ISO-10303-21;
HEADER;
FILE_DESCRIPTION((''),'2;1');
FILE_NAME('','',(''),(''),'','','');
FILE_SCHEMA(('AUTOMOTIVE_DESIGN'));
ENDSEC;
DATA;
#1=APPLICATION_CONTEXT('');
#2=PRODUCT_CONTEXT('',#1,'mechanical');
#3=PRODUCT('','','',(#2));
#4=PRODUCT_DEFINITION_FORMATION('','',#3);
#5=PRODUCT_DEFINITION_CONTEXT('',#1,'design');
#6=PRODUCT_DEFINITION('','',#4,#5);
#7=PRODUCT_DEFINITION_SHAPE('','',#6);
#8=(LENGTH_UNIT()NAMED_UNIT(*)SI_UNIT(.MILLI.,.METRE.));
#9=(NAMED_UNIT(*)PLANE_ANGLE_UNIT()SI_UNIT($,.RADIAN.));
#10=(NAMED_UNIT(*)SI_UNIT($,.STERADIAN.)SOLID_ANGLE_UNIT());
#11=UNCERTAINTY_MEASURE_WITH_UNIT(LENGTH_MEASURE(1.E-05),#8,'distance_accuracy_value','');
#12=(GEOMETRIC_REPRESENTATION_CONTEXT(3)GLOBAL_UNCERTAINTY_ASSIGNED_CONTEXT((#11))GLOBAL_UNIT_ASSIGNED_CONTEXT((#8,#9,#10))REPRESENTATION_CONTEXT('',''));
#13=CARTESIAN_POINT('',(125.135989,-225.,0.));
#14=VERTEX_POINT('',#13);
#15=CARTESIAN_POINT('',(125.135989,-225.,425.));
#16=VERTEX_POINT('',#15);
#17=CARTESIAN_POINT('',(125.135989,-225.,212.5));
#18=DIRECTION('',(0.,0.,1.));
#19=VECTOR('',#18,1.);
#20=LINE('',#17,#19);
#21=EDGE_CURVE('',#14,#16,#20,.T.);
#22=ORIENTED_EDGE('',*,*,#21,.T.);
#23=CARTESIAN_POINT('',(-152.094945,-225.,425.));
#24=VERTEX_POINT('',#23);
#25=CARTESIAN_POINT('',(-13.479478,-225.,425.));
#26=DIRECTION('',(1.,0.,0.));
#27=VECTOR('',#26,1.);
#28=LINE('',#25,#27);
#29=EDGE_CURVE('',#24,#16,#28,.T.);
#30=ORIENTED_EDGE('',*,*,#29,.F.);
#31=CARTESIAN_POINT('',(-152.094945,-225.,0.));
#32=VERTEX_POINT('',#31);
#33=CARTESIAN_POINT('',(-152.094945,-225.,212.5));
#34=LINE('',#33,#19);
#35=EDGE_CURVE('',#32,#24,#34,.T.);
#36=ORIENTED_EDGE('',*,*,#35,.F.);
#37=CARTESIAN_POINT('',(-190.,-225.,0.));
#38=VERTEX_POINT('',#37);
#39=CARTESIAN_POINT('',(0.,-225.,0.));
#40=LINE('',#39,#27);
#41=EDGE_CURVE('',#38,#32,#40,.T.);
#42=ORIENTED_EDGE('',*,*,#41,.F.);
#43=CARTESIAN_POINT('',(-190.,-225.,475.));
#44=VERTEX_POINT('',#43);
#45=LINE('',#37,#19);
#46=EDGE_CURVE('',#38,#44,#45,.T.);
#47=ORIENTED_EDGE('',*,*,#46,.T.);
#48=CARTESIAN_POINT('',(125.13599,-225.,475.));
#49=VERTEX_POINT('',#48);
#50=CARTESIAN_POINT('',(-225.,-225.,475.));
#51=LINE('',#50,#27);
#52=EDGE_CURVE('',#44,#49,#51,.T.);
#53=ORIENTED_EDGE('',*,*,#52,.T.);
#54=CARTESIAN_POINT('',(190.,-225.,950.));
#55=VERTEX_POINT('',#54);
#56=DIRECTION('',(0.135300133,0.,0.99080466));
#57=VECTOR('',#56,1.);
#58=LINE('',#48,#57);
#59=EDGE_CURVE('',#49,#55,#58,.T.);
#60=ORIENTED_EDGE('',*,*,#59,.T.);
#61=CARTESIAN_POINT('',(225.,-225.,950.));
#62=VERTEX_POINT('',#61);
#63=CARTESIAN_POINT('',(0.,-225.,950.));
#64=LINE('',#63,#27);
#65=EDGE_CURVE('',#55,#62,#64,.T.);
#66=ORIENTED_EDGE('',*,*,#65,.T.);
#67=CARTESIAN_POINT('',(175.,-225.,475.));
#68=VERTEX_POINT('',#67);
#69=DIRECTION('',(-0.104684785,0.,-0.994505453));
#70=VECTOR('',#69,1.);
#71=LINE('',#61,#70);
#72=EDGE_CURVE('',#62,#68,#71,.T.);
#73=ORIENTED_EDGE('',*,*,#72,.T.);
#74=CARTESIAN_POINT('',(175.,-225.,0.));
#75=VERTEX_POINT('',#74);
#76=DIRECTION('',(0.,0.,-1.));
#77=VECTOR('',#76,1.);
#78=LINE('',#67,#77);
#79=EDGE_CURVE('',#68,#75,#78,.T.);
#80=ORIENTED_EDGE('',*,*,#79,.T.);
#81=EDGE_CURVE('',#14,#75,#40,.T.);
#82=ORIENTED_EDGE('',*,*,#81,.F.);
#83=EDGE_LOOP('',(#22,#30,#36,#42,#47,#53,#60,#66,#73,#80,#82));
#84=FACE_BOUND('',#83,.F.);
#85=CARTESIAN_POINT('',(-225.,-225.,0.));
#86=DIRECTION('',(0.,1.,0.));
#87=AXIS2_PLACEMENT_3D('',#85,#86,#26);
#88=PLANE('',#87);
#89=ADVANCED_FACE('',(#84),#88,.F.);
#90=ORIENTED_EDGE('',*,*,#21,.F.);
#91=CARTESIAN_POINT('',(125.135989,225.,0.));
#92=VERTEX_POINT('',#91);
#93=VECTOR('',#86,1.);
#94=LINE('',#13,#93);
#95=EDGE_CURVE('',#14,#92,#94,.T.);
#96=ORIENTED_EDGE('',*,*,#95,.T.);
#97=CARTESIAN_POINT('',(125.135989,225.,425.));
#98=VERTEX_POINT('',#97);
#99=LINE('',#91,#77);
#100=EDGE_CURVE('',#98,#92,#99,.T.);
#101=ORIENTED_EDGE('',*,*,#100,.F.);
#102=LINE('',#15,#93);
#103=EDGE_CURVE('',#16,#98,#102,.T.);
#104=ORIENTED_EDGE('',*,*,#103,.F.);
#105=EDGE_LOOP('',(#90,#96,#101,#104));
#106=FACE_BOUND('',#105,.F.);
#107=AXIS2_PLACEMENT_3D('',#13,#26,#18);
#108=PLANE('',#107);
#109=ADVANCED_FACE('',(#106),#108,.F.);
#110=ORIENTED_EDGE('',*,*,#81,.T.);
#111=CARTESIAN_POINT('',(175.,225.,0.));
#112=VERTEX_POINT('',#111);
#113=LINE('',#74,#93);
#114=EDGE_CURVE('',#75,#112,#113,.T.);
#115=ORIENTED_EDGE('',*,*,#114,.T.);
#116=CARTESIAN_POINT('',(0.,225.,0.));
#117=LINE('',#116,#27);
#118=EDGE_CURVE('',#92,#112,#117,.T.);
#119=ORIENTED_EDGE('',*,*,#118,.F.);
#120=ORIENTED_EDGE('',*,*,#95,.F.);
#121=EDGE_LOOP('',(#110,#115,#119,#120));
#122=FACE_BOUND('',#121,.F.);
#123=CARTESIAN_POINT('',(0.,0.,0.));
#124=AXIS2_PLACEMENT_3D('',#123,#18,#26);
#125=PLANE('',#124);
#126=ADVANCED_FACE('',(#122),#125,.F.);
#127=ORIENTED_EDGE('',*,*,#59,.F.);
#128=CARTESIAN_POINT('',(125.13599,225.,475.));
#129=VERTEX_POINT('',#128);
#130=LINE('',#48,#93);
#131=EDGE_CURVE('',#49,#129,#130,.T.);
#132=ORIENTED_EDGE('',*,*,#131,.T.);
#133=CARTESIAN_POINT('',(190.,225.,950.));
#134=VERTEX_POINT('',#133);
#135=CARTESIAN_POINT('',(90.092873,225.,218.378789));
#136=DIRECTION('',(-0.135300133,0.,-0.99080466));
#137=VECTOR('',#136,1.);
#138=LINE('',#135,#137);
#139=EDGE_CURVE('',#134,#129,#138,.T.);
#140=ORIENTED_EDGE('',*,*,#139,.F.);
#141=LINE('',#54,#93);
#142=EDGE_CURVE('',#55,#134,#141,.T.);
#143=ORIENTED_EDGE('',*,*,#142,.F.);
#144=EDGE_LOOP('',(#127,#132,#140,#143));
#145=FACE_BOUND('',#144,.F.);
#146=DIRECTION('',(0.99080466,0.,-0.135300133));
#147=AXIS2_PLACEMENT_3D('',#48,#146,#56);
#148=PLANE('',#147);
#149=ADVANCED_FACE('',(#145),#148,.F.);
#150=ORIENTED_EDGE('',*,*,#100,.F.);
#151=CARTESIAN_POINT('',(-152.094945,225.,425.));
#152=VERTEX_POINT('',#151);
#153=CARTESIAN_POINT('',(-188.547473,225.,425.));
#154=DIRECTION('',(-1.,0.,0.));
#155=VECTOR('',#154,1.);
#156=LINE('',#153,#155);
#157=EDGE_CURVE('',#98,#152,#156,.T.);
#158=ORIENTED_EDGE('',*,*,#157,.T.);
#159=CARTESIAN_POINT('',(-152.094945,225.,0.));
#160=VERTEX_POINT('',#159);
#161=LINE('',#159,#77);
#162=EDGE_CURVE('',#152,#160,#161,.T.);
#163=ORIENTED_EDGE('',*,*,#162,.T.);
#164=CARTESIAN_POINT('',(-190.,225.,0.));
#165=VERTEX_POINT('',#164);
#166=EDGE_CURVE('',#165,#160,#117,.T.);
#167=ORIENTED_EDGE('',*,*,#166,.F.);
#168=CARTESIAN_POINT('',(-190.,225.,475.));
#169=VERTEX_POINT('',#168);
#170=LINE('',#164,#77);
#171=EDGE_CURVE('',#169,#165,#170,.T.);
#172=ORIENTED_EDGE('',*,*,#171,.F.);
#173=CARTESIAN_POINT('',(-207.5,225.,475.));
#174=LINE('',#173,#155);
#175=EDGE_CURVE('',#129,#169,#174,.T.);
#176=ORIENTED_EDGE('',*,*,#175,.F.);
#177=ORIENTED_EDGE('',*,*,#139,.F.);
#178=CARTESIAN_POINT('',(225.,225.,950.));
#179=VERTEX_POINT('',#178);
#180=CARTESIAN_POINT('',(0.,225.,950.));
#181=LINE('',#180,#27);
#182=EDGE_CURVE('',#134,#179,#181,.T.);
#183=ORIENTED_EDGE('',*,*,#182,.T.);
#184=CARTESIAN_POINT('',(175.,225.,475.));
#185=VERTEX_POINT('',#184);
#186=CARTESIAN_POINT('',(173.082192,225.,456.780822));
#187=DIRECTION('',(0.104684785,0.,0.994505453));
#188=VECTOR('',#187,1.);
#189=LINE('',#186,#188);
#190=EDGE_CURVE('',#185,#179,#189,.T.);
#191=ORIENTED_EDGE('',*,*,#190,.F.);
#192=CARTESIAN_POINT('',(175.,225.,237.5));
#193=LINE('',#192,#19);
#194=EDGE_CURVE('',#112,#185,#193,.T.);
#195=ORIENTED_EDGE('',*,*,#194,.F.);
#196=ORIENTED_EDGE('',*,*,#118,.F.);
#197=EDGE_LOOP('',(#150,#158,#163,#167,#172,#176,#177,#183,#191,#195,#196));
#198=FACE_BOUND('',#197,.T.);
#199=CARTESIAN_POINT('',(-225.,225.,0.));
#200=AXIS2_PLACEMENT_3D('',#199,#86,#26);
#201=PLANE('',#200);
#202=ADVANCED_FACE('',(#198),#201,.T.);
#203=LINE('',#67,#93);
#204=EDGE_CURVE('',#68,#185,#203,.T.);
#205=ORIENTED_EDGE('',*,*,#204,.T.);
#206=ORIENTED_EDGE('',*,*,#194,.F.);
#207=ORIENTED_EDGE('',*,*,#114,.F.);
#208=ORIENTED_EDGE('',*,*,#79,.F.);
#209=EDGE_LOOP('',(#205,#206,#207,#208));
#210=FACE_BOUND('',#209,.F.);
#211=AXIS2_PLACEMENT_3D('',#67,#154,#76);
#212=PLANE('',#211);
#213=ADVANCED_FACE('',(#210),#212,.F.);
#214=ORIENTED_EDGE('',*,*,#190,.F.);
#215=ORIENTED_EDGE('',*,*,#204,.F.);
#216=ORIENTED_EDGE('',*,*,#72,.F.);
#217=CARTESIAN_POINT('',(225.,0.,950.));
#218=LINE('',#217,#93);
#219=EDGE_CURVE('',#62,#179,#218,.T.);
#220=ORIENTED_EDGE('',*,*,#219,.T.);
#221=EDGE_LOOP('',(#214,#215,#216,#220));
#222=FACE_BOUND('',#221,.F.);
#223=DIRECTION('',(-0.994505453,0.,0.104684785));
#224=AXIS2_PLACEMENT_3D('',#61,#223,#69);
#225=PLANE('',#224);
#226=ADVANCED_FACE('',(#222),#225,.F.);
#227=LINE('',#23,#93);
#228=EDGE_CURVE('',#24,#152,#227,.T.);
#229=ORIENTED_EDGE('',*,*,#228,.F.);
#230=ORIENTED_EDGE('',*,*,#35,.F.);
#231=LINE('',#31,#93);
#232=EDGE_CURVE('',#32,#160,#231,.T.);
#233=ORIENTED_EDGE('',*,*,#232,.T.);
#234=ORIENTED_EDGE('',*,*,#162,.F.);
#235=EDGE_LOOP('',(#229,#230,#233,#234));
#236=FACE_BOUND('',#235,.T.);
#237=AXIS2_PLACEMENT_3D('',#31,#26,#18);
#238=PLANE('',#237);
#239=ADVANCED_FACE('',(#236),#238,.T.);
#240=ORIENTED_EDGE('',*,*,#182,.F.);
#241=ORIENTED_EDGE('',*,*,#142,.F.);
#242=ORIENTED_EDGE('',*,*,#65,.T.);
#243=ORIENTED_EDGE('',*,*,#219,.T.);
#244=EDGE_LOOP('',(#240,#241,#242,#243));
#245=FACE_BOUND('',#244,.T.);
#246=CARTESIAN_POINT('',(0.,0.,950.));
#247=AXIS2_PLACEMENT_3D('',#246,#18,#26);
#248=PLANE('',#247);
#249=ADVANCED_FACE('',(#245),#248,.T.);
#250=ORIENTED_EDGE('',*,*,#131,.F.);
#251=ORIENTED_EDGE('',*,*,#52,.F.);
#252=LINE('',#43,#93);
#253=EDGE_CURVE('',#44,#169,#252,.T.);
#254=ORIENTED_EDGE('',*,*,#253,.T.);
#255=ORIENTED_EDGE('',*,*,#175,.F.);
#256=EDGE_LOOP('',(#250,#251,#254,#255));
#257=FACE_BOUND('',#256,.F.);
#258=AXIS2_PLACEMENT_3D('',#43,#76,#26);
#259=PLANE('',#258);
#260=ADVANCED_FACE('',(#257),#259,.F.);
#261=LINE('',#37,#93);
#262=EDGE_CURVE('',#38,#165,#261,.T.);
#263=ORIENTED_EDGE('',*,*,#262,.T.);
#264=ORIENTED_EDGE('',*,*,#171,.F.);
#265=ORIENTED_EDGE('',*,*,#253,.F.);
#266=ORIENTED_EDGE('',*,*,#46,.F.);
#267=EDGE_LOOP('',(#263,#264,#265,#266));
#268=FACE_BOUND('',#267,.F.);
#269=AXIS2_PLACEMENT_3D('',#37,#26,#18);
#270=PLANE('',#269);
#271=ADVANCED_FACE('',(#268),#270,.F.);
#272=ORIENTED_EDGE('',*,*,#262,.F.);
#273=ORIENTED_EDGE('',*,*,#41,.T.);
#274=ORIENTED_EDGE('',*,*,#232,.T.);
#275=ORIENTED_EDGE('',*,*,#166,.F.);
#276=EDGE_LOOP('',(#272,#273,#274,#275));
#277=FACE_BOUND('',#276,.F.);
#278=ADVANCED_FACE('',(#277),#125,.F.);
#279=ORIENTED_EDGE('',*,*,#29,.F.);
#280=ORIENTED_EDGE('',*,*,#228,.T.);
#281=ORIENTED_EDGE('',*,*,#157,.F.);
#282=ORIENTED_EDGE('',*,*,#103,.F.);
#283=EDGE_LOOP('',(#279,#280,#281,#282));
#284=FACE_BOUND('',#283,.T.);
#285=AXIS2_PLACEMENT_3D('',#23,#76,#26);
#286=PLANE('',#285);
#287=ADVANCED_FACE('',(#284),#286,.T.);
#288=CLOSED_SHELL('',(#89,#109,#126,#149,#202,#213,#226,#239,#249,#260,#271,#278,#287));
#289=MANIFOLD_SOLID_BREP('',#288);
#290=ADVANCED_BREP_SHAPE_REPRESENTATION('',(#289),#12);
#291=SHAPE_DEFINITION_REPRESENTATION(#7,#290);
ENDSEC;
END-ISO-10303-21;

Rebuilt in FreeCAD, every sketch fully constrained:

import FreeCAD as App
import Part
import Sketcher

V = App.Vector
Q = App.Units.Quantity

doc = App.newDocument("Part")
body = doc.addObject("PartDesign::Body", "Body")

sketch1 = doc.addObject("Sketcher::SketchObject", "Sketch")
body.addObject(sketch1)
sketch1.AttachmentSupport = (doc.XY_Plane, [""])
sketch1.MapMode = "FlatFace"
sketch1.addGeometry([
    Part.LineSegment(V(-225, 225, 0), V(-225, -225, 0)),
    Part.LineSegment(V(-225, -225, 0), V(225, -225, 0)),
    Part.LineSegment(V(225, -225, 0), V(225, 225, 0)),
    Part.LineSegment(V(225, 225, 0), V(-225, 225, 0)),
], False)
sketch1.addConstraint([
    Sketcher.Constraint("Coincident", 0, 2, 1, 1),
    Sketcher.Constraint("Coincident", 1, 2, 2, 1),
    Sketcher.Constraint("Coincident", 2, 2, 3, 1),
    Sketcher.Constraint("Coincident", 3, 2, 0, 1),
    Sketcher.Constraint("Vertical", 0),
    Sketcher.Constraint("Horizontal", 1),
    Sketcher.Constraint("Vertical", 2),
    Sketcher.Constraint("Horizontal", 3),
    Sketcher.Constraint("Symmetric", 0, 2, 2, 2, -1, 1),
    Sketcher.Constraint("Equal", 3, 0),
    Sketcher.Constraint("DistanceX", 1, 1, 1, 2, Q("450 mm")),
])
pad1 = doc.addObject("PartDesign::Pad", "Pad")
body.addObject(pad1)
pad1.Profile = sketch1
pad1.Length = 950

sketch2 = doc.addObject("Sketcher::SketchObject", "Sketch001")
body.addObject(sketch2)
sketch2.AttachmentSupport = (doc.XZ_Plane, [""])
sketch2.MapMode = "FlatFace"
sketch2.AttachmentOffset = App.Placement(V(0, 0, 225), App.Rotation())
sketch2.addGeometry([
    Part.LineSegment(V(-225, 950, 0), V(-225, 0, 0)),
    Part.LineSegment(V(-225, 0, 0), V(-190, 0, 0)),
    Part.LineSegment(V(-190, 0, 0), V(-190, 475, 0)),
    Part.LineSegment(V(-190, 475, 0), V(125.13599, 475, 0)),
    Part.LineSegment(V(125.13599, 475, 0), V(190, 950, 0)),
    Part.LineSegment(V(190, 950, 0), V(-225, 950, 0)),
    Part.LineSegment(V(-152.094945, 425, 0), V(-152.094945, 0, 0)),
    Part.LineSegment(V(-152.094945, 0, 0), V(125.135989, 0, 0)),
    Part.LineSegment(V(125.135989, 0, 0), V(125.135989, 425, 0)),
    Part.LineSegment(V(125.135989, 425, 0), V(-152.094945, 425, 0)),
    Part.LineSegment(V(175, 0, 0), V(225, 0, 0)),
    Part.LineSegment(V(225, 0, 0), V(225, 950, 0)),
    Part.LineSegment(V(225, 950, 0), V(175, 475, 0)),
    Part.LineSegment(V(175, 475, 0), V(175, 0, 0)),
], False)
sketch2.addConstraint([
    Sketcher.Constraint("Coincident", 0, 2, 1, 1),
    Sketcher.Constraint("Coincident", 1, 2, 2, 1),
    Sketcher.Constraint("Coincident", 2, 2, 3, 1),
    Sketcher.Constraint("Coincident", 3, 2, 4, 1),
    Sketcher.Constraint("Coincident", 4, 2, 5, 1),
    Sketcher.Constraint("Coincident", 5, 2, 0, 1),
    Sketcher.Constraint("Coincident", 6, 2, 7, 1),
    Sketcher.Constraint("Coincident", 7, 2, 8, 1),
    Sketcher.Constraint("Coincident", 8, 2, 9, 1),
    Sketcher.Constraint("Coincident", 9, 2, 6, 1),
    Sketcher.Constraint("Coincident", 10, 2, 11, 1),
    Sketcher.Constraint("Coincident", 11, 2, 12, 1),
    Sketcher.Constraint("Coincident", 12, 2, 13, 1),
    Sketcher.Constraint("Coincident", 13, 2, 10, 1),
    Sketcher.Constraint("Vertical", 0),
    Sketcher.Constraint("Horizontal", 1),
    Sketcher.Constraint("Vertical", 2),
    Sketcher.Constraint("Horizontal", 3),
    Sketcher.Constraint("Horizontal", 5),
    Sketcher.Constraint("Vertical", 6),
    Sketcher.Constraint("Horizontal", 7),
    Sketcher.Constraint("Vertical", 8),
    Sketcher.Constraint("Horizontal", 9),
    Sketcher.Constraint("Horizontal", 10),
    Sketcher.Constraint("Vertical", 11),
    Sketcher.Constraint("Vertical", 13),
    Sketcher.Constraint("Symmetric", 0, 2, 10, 2, -1, 1),
    Sketcher.Constraint("PointOnObject", 0, 2, -1),
    Sketcher.Constraint("PointOnObject", 6, 2, -1),
    Sketcher.Constraint("Horizontal", 5, 2, 11, 2),
    Sketcher.Constraint("Horizontal", 3, 2, 12, 2),
    Sketcher.Constraint("Vertical", 3, 2, 7, 2),
    Sketcher.Constraint("DistanceX", 1, 1, 1, 2, Q("35 mm")),
    Sketcher.Constraint("DistanceX", 5, 2, 5, 1, Q("415 mm")),
    Sketcher.Constraint("DistanceX", 10, 1, 10, 2, Q("50 mm")),
    Sketcher.Constraint("DistanceY", 0, 2, 0, 1, Q("950 mm")),
    Sketcher.Constraint("DistanceY", 2, 1, 2, 2, Q("475 mm")),
    Sketcher.Constraint("DistanceY", 6, 2, 6, 1, Q("425 mm")),
    Sketcher.Constraint("DistanceX", 0, 2, -1, 1, Q("225 mm")),
    Sketcher.Constraint("DistanceX", 3, 1, 3, 2, Q("315.13599 mm")),
    Sketcher.Constraint("DistanceX", 7, 1, 7, 2, Q("277.230935 mm")),
])
pocket1 = doc.addObject("PartDesign::Pocket", "Pocket")
body.addObject(pocket1)
pocket1.Profile = sketch2
pocket1.Type = "ThroughAll"

doc.recompute()
